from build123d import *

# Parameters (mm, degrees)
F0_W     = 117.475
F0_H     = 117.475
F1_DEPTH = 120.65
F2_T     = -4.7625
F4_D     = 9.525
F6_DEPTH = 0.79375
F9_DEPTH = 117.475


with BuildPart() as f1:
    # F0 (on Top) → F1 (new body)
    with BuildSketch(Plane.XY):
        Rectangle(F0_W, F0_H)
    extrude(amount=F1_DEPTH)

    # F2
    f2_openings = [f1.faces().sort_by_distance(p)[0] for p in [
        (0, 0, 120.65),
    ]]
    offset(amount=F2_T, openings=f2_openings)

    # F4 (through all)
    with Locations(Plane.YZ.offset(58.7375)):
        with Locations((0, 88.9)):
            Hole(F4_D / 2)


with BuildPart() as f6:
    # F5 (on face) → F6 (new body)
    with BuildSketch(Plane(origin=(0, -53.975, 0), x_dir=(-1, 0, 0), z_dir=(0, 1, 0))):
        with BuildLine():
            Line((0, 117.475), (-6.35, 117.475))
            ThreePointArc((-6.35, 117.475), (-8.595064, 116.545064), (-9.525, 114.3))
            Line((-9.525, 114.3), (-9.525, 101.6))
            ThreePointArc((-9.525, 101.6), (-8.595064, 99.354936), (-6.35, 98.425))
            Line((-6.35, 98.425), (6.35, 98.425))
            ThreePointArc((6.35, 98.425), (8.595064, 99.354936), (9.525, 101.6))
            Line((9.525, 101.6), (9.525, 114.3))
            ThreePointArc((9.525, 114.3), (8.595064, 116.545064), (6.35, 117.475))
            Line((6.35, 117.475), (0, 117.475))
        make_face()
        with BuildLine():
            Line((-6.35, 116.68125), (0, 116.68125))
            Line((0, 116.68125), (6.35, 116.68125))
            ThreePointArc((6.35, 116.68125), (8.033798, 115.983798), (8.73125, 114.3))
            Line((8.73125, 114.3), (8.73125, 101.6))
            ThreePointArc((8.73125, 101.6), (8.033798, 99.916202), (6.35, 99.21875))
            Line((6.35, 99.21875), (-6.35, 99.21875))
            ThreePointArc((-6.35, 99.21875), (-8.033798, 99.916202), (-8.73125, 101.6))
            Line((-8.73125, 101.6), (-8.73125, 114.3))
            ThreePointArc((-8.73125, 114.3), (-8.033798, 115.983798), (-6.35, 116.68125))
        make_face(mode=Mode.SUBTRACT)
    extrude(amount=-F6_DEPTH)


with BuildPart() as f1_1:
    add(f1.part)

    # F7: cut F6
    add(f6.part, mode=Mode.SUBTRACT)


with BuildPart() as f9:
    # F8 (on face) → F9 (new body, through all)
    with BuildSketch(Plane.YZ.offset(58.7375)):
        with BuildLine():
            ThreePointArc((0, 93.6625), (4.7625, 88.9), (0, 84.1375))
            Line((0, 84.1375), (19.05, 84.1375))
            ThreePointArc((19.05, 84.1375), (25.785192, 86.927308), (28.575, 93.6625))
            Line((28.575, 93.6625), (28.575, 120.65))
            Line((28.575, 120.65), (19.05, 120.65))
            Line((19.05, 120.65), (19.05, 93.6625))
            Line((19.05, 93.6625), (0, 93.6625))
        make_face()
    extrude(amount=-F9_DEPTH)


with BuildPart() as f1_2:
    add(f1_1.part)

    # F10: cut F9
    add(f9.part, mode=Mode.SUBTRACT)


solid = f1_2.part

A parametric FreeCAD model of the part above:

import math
import FreeCAD as App
import Part
import Sketcher
from FreeCAD import Vector
Q = App.Units.Quantity


def faces_at(feature, points):
    """Names of the faces that lie closest to the given points."""
    faces = feature.Shape.Faces
    near = lambda p: min(range(len(faces)), key=lambda i: faces[i].distToShape(Part.Vertex(*p))[0])
    return sorted({f"Face{near(p) + 1}" for p in points})


def add_polygon(sketch, points):
    """Adds a closed chain of lines whose ends are joined by coincident constraints."""
    first, n = sketch.GeometryCount, len(points)
    for a, b in zip(points, points[1:] + points[:1]):
        sketch.addGeometry(Part.LineSegment(App.Vector(*a, 0), App.Vector(*b, 0)), False)
    for i in range(n):
        sketch.addConstraint(Sketcher.Constraint("Coincident", first + i, 2, first + (i + 1) % n, 1))

doc = App.newDocument("Part")
body = doc.addObject("PartDesign::Body", "Body")

sketch1 = body.newObject("Sketcher::SketchObject", "Sketch")
sketch1.AttachmentSupport = (doc.getObject("XY_Plane"), [""])
sketch1.MapMode = "FlatFace"
add_polygon(sketch1, [(-59, 59), (-59, -59), (59, -59), (59, 59)])
sketch1.addConstraint([
    Sketcher.Constraint("Vertical", 0),
    Sketcher.Constraint("Horizontal", 1),
    Sketcher.Constraint("Vertical", 2),
    Sketcher.Constraint("Horizontal", 3),
    Sketcher.Constraint("Symmetric", 0, 2, 2, 2, -1, 1),
    Sketcher.Constraint("Equal", 3, 0),
    Sketcher.Constraint("DistanceX", 1, 1, 1, 2, Q("4.625 in")),
])
pad1 = body.newObject("PartDesign::Pad", "Pad")
pad1.Profile = sketch1
pad1.Length = Q("4.75 in")
doc.recompute()

thickness = body.newObject("PartDesign::Thickness", "Thickness")
thickness.Base = (pad1, faces_at(pad1, [(0, 0, 120.65)]))
thickness.Value = Q("0.1875 in")
thickness.Reversed = True
thickness.Join = "Arc"

sketch2 = body.newObject("Sketcher::SketchObject", "Sketch001")
sketch2.AttachmentSupport = (doc.getObject("YZ_Plane"), [""])
sketch2.MapMode = "FlatFace"
sketch2.AttachmentOffset = App.Placement(Vector(0, 0, 2.3125 * 25.4), App.Rotation())
sketch2.addGeometry(Part.Circle(Vector(0, 88.9, 0), Vector(0, 0, 1), 4.8), False)
sketch2.addConstraint([
    Sketcher.Constraint("PointOnObject", 0, 3, -2),
    Sketcher.Constraint("Diameter", 0, Q("0.375 in")),
    Sketcher.Constraint("DistanceY", -1, 1, 0, 3, Q("3.5 in")),
])
doc.recompute()
hole = body.newObject("PartDesign::Hole", "Hole")
hole.Profile = sketch2
hole.ThreadType = "None"
hole.Diameter = Q("0.375 in")
hole.DepthType = "ThroughAll"
body2 = doc.addObject("PartDesign::Body", "Body001")

sketch3 = body2.newObject("Sketcher::SketchObject", "Sketch002")
sketch3.AttachmentSupport = (doc.getObject("XZ_Plane001"), [""])
sketch3.MapMode = "FlatFace"
sketch3.AttachmentOffset = App.Placement(Vector(0, 0, 2.125 * 25.4), App.Rotation())
sketch3.addGeometry([
    Part.ArcOfCircle(Part.Circle(Vector(6.3, 114.3, 0), Vector(0, 0, 1), 3.2), math.radians(0), math.radians(90)),
    Part.LineSegment(Vector(9.5, 114.3, 0), Vector(9.5, 101.6, 0)),
    Part.ArcOfCircle(Part.Circle(Vector(6.3, 101.6, 0), Vector(0, 0, 1), 3.2), math.radians(-90), math.radians(0)),
    Part.LineSegment(Vector(6.3, 98.4, 0), Vector(-6.3, 98.4, 0)),
    Part.ArcOfCircle(Part.Circle(Vector(-6.3, 101.6, 0), Vector(0, 0, 1), 3.2), math.radians(-180), math.radians(-90)),
    Part.LineSegment(Vector(-9.5, 101.6, 0), Vector(-9.5, 114.3, 0)),
    Part.ArcOfCircle(Part.Circle(Vector(-6.3, 114.3, 0), Vector(0, 0, 1), 3.2), math.radians(90), math.radians(180)),
    Part.LineSegment(Vector(-6.3, 117.5, 0), Vector(6.3, 117.5, 0)),
    Part.ArcOfCircle(Part.Circle(Vector(6.3, 114.3, 0), Vector(0, 0, 1), 2.4), math.radians(0), math.radians(90)),
    Part.LineSegment(Vector(6.3, 116.7, 0), Vector(-6.3, 116.7, 0)),
    Part.ArcOfCircle(Part.Circle(Vector(-6.3, 114.3, 0), Vector(0, 0, 1), 2.4), math.radians(90), math.radians(180)),
    Part.LineSegment(Vector(-8.7, 114.3, 0), Vector(-8.7, 101.6, 0)),
    Part.ArcOfCircle(Part.Circle(Vector(-6.3, 101.6, 0), Vector(0, 0, 1), 2.4), math.radians(-180), math.radians(-90)),
    Part.LineSegment(Vector(-6.3, 99.2, 0), Vector(6.3, 99.2, 0)),
    Part.ArcOfCircle(Part.Circle(Vector(6.3, 101.6, 0), Vector(0, 0, 1), 2.4), math.radians(-90), math.radians(0)),
    Part.LineSegment(Vector(8.7, 101.6, 0), Vector(8.7, 114.3, 0)),
], False)
sketch3.addConstraint([
    Sketcher.Constraint("Tangent", 0, 1, 1, 1),
    Sketcher.Constraint("Tangent", 1, 2, 2, 2),
    Sketcher.Constraint("Tangent", 2, 1, 3, 1),
    Sketcher.Constraint("Tangent", 3, 2, 4, 2),
    Sketcher.Constraint("Tangent", 4, 1, 5, 1),
    Sketcher.Constraint("Tangent", 5, 2, 6, 2),
    Sketcher.Constraint("Tangent", 6, 1, 7, 1),
    Sketcher.Constraint("Tangent", 7, 2, 0, 2),
    Sketcher.Constraint("Tangent", 8, 2, 9, 1),
    Sketcher.Constraint("Tangent", 9, 2, 10, 1),
    Sketcher.Constraint("Tangent", 10, 2, 11, 1),
    Sketcher.Constraint("Tangent", 11, 2, 12, 1),
    Sketcher.Constraint("Tangent", 12, 2, 13, 1),
    Sketcher.Constraint("Tangent", 13, 2, 14, 1),
    Sketcher.Constraint("Tangent", 14, 2, 15, 1),
    Sketcher.Constraint("Tangent", 15, 2, 8, 1),
    Sketcher.Constraint("Vertical", 1),
    Sketcher.Constraint("Horizontal", 3),
    Sketcher.Constraint("Vertical", 5),
    Sketcher.Constraint("Horizontal", 7),
    Sketcher.Constraint("Horizontal", 9),
    Sketcher.Constraint("Vertical", 11),
    Sketcher.Constraint("Horizontal", 13),
    Sketcher.Constraint("Vertical", 15),
    Sketcher.Constraint("Coincident", 8, 3, 0, 3),
    Sketcher.Constraint("Coincident", 10, 3, 6, 3),
    Sketcher.Constraint("Coincident", 12, 3, 4, 3),
    Sketcher.Constraint("Equal", 0, 2),
    Sketcher.Constraint("Equal", 2, 4),
    Sketcher.Constraint("Equal", 4, 6),
    Sketcher.Constraint("Equal", 12, 14),
    Sketcher.Constraint("Equal", 13, 1),
    Sketcher.Constraint("DistanceX", 3, 2, 3, 1, Q("0.5 in")),
    Sketcher.Constraint("DistanceY", -1, 1, 2, 3, Q("4 in")),
    Sketcher.Constraint("Radius", 0, Q("0.125 in")),
    Sketcher.Constraint("Radius", 8, Q("0.09375 in")),
    Sketcher.Constraint("DistanceX", -1, 1, 0, 3, Q("0.25 in")),
])
pad2 = body2.newObject("PartDesign::Pad", "Pad001")
pad2.Profile = sketch3
pad2.Length = Q("0.03125 in")
doc.recompute()

boolean = body.newObject("PartDesign::Boolean", "Boolean")
boolean.Type = "Cut"
boolean.addObjects([body2])
body3 = doc.addObject("PartDesign::Body", "Body002")

sketch4 = body3.newObject("Sketcher::SketchObject", "Sketch003")
sketch4.AttachmentSupport = (doc.getObject("YZ_Plane002"), [""])
sketch4.MapMode = "FlatFace"
sketch4.AttachmentOffset = App.Placement(Vector(0, 0, 2.3125 * 25.4), App.Rotation())
sketch4.addGeometry([
    Part.ArcOfCircle(Part.Circle(Vector(0, 88.9, 0), Vector(0, 0, 1), 4.8), math.radians(-90), math.radians(90)),
    Part.LineSegment(Vector(0, 84.1, 0), Vector(19.1, 84.1, 0)),
    Part.ArcOfCircle(Part.Circle(Vector(19, 93.7, 0), Vector(0, 0, 1), 9.5), math.radians(-90), math.radians(0)),
    Part.LineSegment(Vector(28.6, 93.7, 0), Vector(28.6, 120.7, 0)),
    Part.LineSegment(Vector(28.6, 120.7, 0), Vector(19.1, 120.7, 0)),
    Part.LineSegment(Vector(19.1, 120.7, 0), Vector(19.1, 93.7, 0)),
    Part.LineSegment(Vector(19.1, 93.7, 0), Vector(0, 93.7, 0)),
], False)
sketch4.addConstraint([
    Sketcher.Constraint("Tangent", 0, 1, 1, 1),
    Sketcher.Constraint("Tangent", 1, 2, 2, 1),
    Sketcher.Constraint("Tangent", 2, 2, 3, 1),
    Sketcher.Constraint("Coincident", 3, 2, 4, 1),
    Sketcher.Constraint("Coincident", 4, 2, 5, 1),
    Sketcher.Constraint("Coincident", 5, 2, 6, 1),
    Sketcher.Constraint("Tangent", 6, 2, 0, 2),
    Sketcher.Constraint("Horizontal", 1),
    Sketcher.Constraint("Vertical", 3),
    Sketcher.Constraint("Horizontal", 4),
    Sketcher.Constraint("Vertical", 5),
    Sketcher.Constraint("Horizontal", 6),
    Sketcher.Constraint("Coincident", 5, 2, 2, 3),
    Sketcher.Constraint("PointOnObject", 0, 3, -2),
    Sketcher.Constraint("Radius", 0, Q("0.1875 in")),
    Sketcher.Constraint("DistanceX", 1, 1, 1, 2, Q("0.75 in")),
    Sketcher.Constraint("DistanceY", -1, 1, 0, 3, Q("3.5 in")),
    Sketcher.Constraint("DistanceY", 3, 1, 3, 2, Q("1.0625 in")),
])
pad3 = body3.newObject("PartDesign::Pad", "Pad002")
pad3.Profile = sketch4
pad3.Length = Q("4.625 in")
pad3.Reversed = True
doc.recompute()

boolean2 = body.newObject("PartDesign::Boolean", "Boolean001")
boolean2.Type = "Cut"
boolean2.addObjects([body3])

doc.recompute()
